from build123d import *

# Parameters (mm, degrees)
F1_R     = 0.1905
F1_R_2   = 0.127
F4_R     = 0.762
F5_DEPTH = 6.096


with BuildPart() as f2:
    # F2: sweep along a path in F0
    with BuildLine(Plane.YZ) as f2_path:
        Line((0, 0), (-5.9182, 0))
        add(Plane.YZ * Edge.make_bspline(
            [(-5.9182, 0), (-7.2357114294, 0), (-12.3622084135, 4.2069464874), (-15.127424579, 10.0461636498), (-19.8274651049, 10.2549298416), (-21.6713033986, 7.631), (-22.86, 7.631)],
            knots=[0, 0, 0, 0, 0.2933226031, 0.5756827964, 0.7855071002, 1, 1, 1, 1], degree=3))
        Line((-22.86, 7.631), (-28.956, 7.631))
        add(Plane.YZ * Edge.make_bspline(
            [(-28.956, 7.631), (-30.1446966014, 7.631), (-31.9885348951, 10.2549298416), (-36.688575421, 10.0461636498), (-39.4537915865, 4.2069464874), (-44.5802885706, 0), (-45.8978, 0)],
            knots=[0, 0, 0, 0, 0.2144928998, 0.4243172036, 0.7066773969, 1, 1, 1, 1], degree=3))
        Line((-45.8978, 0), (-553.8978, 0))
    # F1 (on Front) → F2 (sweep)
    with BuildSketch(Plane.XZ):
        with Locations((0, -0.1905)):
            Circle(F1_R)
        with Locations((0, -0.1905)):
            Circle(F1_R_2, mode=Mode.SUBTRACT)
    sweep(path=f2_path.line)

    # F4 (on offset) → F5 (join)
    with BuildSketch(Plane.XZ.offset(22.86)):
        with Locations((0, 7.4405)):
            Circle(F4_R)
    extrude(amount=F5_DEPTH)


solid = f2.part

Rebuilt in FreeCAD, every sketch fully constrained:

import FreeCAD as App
import Part
import Sketcher

V = App.Vector
Q = App.Units.Quantity

doc = App.newDocument("Part")
body = doc.addObject("PartDesign::Body", "Body")

# Sketch on XZ plane
sketch1 = doc.addObject("Sketcher::SketchObject", "Sketch")
body.addObject(sketch1)
sketch1.AttachmentSupport = (doc.XZ_Plane, [""])
sketch1.MapMode = "FlatFace"
sketch1.addGeometry([
    Part.Circle(V(0, -0.19, 0), V(0, 0, 1), 0.19),
    Part.Circle(V(0, -0.19, 0), V(0, 0, 1), 0.13),
], False)
sketch1.addConstraint([
    Sketcher.Constraint("Coincident", 1, 3, 0, 3),
    Sketcher.Constraint("PointOnObject", 0, 3, -2),
    Sketcher.Constraint("Diameter", 1, Q("0.01 in")),
    Sketcher.Constraint("Diameter", 0, Q("0.015 in")),
    Sketcher.Constraint("DistanceY", 0, 3, -1, 1, Q("0.0075 in")),
])

# Sketch on YZ plane
sketch2 = doc.addObject("Sketcher::SketchObject", "Sketch001")
body.addObject(sketch2)
sketch2.AttachmentSupport = (doc.YZ_Plane, [""])
sketch2.MapMode = "FlatFace"
sketch2.addGeometry([
    Part.LineSegment(V(0, 0, 0), V(-5.9182, 0, 0)),  # 0
    Part.BSplineCurve([V(-5.9182, 0, 0), V(-7.235711, 0, 0), V(-12.362208, 4.206946, 0), V(-15.127425, 10.046164, 0), V(-19.827465, 10.25493, 0), V(-21.671303, 7.631, 0), V(-22.86, 7.631, 0)], [4, 1, 1, 1, 4], [0, 0.293322603, 0.575682796, 0.7855071, 1], False, 3, [1, 1, 1, 1, 1, 1, 1], False),  # 1
    Part.LineSegment(V(-22.86, 7.631, 0), V(-28.956, 7.631, 0)),  # 2
    Part.BSplineCurve([V(-28.956, 7.631, 0), V(-30.144697, 7.631, 0), V(-31.988535, 10.25493, 0), V(-36.688575, 10.046164, 0), V(-39.453792, 4.206946, 0), V(-44.580289, 0, 0), V(-45.8978, 0, 0)], [4, 1, 1, 1, 4], [0, 0.2144929, 0.424317204, 0.706677397, 1], False, 3, [1, 1, 1, 1, 1, 1, 1], False),  # 3
    Part.LineSegment(V(-45.8978, 0, 0), V(-553.8978, 0, 0)),  # 4
], False)
sketch2.addConstraint([
    Sketcher.Constraint("Block", 1),
    Sketcher.Constraint("Block", 3),
    Sketcher.Constraint("Coincident", 0, 2, 1, 1),
    Sketcher.Constraint("Coincident", 1, 2, 2, 1),
    Sketcher.Constraint("Coincident", 2, 2, 3, 1),
    Sketcher.Constraint("Coincident", 3, 2, 4, 1),
    Sketcher.Constraint("Horizontal", 0),
    Sketcher.Constraint("Horizontal", 4),
    Sketcher.Constraint("DistanceX", 4, 2, 4, 1, Q("20 in")),
    Sketcher.Constraint("DistanceX", 0, 2, 0, 1, Q("0.233 in")),
])
doc.recompute()

additivepipe = doc.addObject("PartDesign::AdditivePipe", "AdditivePipe")
body.addObject(additivepipe)
additivepipe.Profile = sketch1
additivepipe.Spine = (sketch2, ["Edge1", "Edge2", "Edge3", "Edge4", "Edge5"])

# Sketch on XZ plane
sketch3 = doc.addObject("Sketcher::SketchObject", "Sketch002")
body.addObject(sketch3)
sketch3.AttachmentSupport = (doc.XZ_Plane, [""])
sketch3.MapMode = "FlatFace"
sketch3.AttachmentOffset = App.Placement(V(0, 0, 0.9 * 25.4), App.Rotation())
sketch3.addGeometry(Part.Circle(V(0, 7.4, 0), V(0, 0, 1), 0.8), False)
sketch3.addConstraint([
    Sketcher.Constraint("PointOnObject", 0, 3, -2),
    Sketcher.Constraint("Diameter", 0, Q("0.06 in")),
    Sketcher.Constraint("DistanceY", -1, 1, 0, 3, 7.4405),
])
pad1 = doc.addObject("PartDesign::Pad", "Pad")
body.addObject(pad1)
pad1.Profile = sketch3
pad1.Length = Q("0.24 in")

doc.recompute()
